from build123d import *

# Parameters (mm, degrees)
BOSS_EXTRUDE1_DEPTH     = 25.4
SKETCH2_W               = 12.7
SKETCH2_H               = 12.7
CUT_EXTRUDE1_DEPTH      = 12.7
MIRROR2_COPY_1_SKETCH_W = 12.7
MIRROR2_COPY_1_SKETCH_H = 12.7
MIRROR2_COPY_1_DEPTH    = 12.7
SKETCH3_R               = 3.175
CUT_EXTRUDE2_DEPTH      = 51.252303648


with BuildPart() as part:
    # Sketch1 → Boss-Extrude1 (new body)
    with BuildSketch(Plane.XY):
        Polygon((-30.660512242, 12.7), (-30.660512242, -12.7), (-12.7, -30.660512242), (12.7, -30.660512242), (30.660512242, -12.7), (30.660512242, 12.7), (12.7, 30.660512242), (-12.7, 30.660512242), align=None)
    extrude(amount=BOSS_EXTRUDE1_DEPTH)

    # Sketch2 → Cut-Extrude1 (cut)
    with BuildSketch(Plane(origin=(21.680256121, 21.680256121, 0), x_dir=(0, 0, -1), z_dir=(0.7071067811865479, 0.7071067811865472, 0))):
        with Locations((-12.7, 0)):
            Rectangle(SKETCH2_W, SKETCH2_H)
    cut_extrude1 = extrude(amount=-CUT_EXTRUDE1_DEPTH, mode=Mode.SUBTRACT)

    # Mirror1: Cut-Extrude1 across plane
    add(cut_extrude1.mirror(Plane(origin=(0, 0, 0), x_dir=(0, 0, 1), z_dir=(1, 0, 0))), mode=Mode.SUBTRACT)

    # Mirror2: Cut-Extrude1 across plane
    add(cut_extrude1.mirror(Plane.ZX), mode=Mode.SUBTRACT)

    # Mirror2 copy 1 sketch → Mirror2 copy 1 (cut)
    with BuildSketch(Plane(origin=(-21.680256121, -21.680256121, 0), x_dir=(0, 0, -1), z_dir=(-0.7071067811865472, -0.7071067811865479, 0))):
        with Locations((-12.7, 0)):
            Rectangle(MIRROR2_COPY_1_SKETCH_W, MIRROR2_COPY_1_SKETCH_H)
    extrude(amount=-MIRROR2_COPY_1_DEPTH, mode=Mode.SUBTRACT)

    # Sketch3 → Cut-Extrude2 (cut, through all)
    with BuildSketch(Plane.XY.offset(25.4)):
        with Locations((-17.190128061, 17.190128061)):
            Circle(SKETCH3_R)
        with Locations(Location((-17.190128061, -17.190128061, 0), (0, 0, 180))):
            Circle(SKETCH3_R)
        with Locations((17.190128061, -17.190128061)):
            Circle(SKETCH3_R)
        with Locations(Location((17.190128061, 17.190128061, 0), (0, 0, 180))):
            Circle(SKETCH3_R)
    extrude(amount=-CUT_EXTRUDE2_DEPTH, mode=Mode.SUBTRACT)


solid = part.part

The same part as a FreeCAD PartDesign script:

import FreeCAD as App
import Part
import Sketcher
Q = App.Units.Quantity


def add_polygon(sketch, points):
    """Adds a closed chain of lines whose ends are joined by coincident constraints."""
    first, n = sketch.GeometryCount, len(points)
    for a, b in zip(points, points[1:] + points[:1]):
        sketch.addGeometry(Part.LineSegment(App.Vector(*a, 0), App.Vector(*b, 0)), False)
    for i in range(n):
        sketch.addConstraint(Sketcher.Constraint("Coincident", first + i, 2, first + (i + 1) % n, 1))

doc = App.newDocument("Part")
params = doc.addObject("Spreadsheet::Sheet", "Params")
for row, (alias, value) in enumerate([
    ("sketch1_width", "1 in"),
    ("sketch1_length", "1 in"),
    ("pad1_length", "1 in"),
    ("sketch2_width", "0.5 in"),
    ("pocket1_length", "0.5 in"),
    ("sketch3_width", "0.5 in"),
    ("pocket2_length", "0.5 in"),
    ("sketch4_diameter", "0.25 in"),
], start=1):
    params.set(f"A{row}", alias)
    params.set(f"B{row}", "=" + value)
    params.setAlias(f"B{row}", alias)

body = doc.addObject("PartDesign::Body", "Body")

# Sketch on XY plane
sketch1 = body.newObject("Sketcher::SketchObject", "Sketch")
sketch1.AttachmentSupport = (doc.getObject("XY_Plane"), [""])
sketch1.MapMode = "FlatFace"
add_polygon(sketch1, [(-31, 13), (-31, -13), (-13, -31), (13, -31), (31, -13), (31, 13), (13, 31), (-13, 31)])  # lines 0-7
sketch1.addConstraint(Sketcher.Constraint("Vertical", 0))
sketch1.addConstraint(Sketcher.Constraint("Horizontal", 2))
sketch1.addConstraint(Sketcher.Constraint("Vertical", 4))
sketch1.addConstraint(Sketcher.Constraint("Horizontal", 6))
sketch1.addConstraint(Sketcher.Constraint("Symmetric", 0, 2, 4, 2, -1, 1))
sketch1.addConstraint(Sketcher.Constraint("Symmetric", 1, 2, 5, 2, -1, 1))
sketch1.addConstraint(Sketcher.Constraint("Perpendicular", 1, 3))
sketch1.addConstraint(Sketcher.Constraint("Perpendicular", 5, 7))
sketch1.addConstraint(Sketcher.Constraint("Horizontal", 0, 2, 3, 2))
sketch1.addConstraint(Sketcher.Constraint("Horizontal", 4, 2, 7, 2))
sketch1.addConstraint(Sketcher.Constraint("Vertical", 2, 2, 5, 2))
sketch1.addConstraint(Sketcher.Constraint("Equal", 6, 0))
sketch1.addConstraint(Sketcher.Constraint("DistanceX", 2, 1, 2, 2, Q("1 in")))
sketch1.addConstraint(Sketcher.Constraint("Distance", 1, Q("1 in")))
sketch1.setExpression("Constraints[20]", "Params.sketch1_width")
sketch1.setExpression("Constraints[21]", "Params.sketch1_length")
pad1 = body.newObject("PartDesign::Pad", "Pad")
pad1.Profile = sketch1
pad1.setExpression("Length", "Params.pad1_length")

# Sketch on an angled plane
sketch2 = body.newObject("Sketcher::SketchObject", "Sketch001")
sketch2.Placement = App.Placement(App.Vector(21.680256, 21.680256, 0), App.Rotation(App.Vector(0, 0, -1), App.Vector(-0.707106781, 0.707106781, 0), App.Vector(0.707106781, 0.707106781, 0), "ZXY"))
add_polygon(sketch2, [(-19, 6), (-19, -6), (-6, -6), (-6, 6)])  # lines 0-3
sketch2.addConstraint(Sketcher.Constraint("Vertical", 0))
sketch2.addConstraint(Sketcher.Constraint("Horizontal", 1))
sketch2.addConstraint(Sketcher.Constraint("Vertical", 2))
sketch2.addConstraint(Sketcher.Constraint("Horizontal", 3))
sketch2.addConstraint(Sketcher.Constraint("Equal", 3, 0))
sketch2.addConstraint(Sketcher.Constraint("DistanceX", 1, 1, 1, 2, Q("0.5 in")))
sketch2.addConstraint(Sketcher.Constraint("DistanceX", 0, 2, -1, 1, Q("0.75 in")))
sketch2.addConstraint(Sketcher.Constraint("DistanceY", 0, 2, -1, 1, Q("0.25 in")))
sketch2.setExpression("Constraints[9]", "Params.sketch2_width")
pocket1 = body.newObject("PartDesign::Pocket", "Pocket")
pocket1.Profile = sketch2
pocket1.setExpression("Length", "Params.pocket1_length")
doc.recompute()

mirrored = body.newObject("PartDesign::Mirrored", "Mirrored")
mirrored.Originals = [pocket1]
mirrored.MirrorPlane = (doc.getObject("YZ_Plane"), [""])
body.Tip = mirrored
doc.recompute()

mirrored2 = body.newObject("PartDesign::Mirrored", "Mirrored001")
mirrored2.Originals = [pocket1]
mirrored2.MirrorPlane = (doc.getObject("XZ_Plane"), [""])
body.Tip = mirrored2

# Sketch on an angled plane
sketch3 = body.newObject("Sketcher::SketchObject", "Sketch002")
sketch3.Placement = App.Placement(App.Vector(-21.680256, -21.680256, 0), App.Rotation(App.Vector(0, 0, -1), App.Vector(0.707106781, -0.707106781, 0), App.Vector(-0.707106781, -0.707106781, 0), "ZXY"))
add_polygon(sketch3, [(-19, 6), (-19, -6), (-6, -6), (-6, 6)])  # lines 0-3
sketch3.addConstraint(Sketcher.Constraint("Vertical", 0))
sketch3.addConstraint(Sketcher.Constraint("Horizontal", 1))
sketch3.addConstraint(Sketcher.Constraint("Vertical", 2))
sketch3.addConstraint(Sketcher.Constraint("Horizontal", 3))
sketch3.addConstraint(Sketcher.Constraint("Equal", 3, 0))
sketch3.addConstraint(Sketcher.Constraint("DistanceX", 1, 1, 1, 2, Q("0.5 in")))
sketch3.addConstraint(Sketcher.Constraint("DistanceX", 0, 2, -1, 1, Q("0.75 in")))
sketch3.addConstraint(Sketcher.Constraint("DistanceY", 0, 2, -1, 1, Q("0.25 in")))
sketch3.setExpression("Constraints[9]", "Params.sketch3_width")
pocket2 = body.newObject("PartDesign::Pocket", "Pocket001")
pocket2.Profile = sketch3
pocket2.setExpression("Length", "Params.pocket2_length")

# Sketch on XY plane
sketch4 = body.newObject("Sketcher::SketchObject", "Sketch003")
sketch4.AttachmentSupport = (doc.getObject("XY_Plane"), [""])
sketch4.MapMode = "FlatFace"
sketch4.AttachmentOffset = App.Placement(App.Vector(0, 0, 1 * 25.4), App.Rotation())
sketch4.addGeometry(Part.Circle(App.Vector(-17.2, 17.2, 0), App.Vector(0, 0, 1), 3.2), False)
sketch4.addGeometry(Part.Circle(App.Vector(-17.2, -17.2, 0), App.Vector(0, 0, 1), 3.2), False)
sketch4.addGeometry(Part.Circle(App.Vector(17.2, -17.2, 0), App.Vector(0, 0, 1), 3.2), False)
sketch4.addGeometry(Part.Circle(App.Vector(17.2, 17.2, 0), App.Vector(0, 0, 1), 3.2), False)
sketch4.addConstraint(Sketcher.Constraint("Equal", 0, 1))
sketch4.addConstraint(Sketcher.Constraint("Equal", 1, 2))
sketch4.addConstraint(Sketcher.Constraint("Equal", 2, 3))
sketch4.addConstraint(Sketcher.Constraint("Symmetric", 0, 3, 2, 3, -1, 1))
sketch4.addConstraint(Sketcher.Constraint("Symmetric", 1, 3, 3, 3, -1, 1))
sketch4.addConstraint(Sketcher.Constraint("Symmetric", 1, 3, 2, 3, -2))
sketch4.addConstraint(Sketcher.Constraint("Diameter", 0, Q("0.25 in")))
sketch4.addConstraint(Sketcher.Constraint("DistanceX", 0, 3, -1, 1, Q("17.190128 mm")))
sketch4.addConstraint(Sketcher.Constraint("DistanceY", -1, 1, 0, 3, Q("17.190128 mm")))
sketch4.setExpression("Constraints[6]", "Params.sketch4_diameter")
pocket3 = body.newObject("PartDesign::Pocket", "Pocket002")
pocket3.Profile = sketch4
pocket3.Type = "ThroughAll"

doc.recompute()
